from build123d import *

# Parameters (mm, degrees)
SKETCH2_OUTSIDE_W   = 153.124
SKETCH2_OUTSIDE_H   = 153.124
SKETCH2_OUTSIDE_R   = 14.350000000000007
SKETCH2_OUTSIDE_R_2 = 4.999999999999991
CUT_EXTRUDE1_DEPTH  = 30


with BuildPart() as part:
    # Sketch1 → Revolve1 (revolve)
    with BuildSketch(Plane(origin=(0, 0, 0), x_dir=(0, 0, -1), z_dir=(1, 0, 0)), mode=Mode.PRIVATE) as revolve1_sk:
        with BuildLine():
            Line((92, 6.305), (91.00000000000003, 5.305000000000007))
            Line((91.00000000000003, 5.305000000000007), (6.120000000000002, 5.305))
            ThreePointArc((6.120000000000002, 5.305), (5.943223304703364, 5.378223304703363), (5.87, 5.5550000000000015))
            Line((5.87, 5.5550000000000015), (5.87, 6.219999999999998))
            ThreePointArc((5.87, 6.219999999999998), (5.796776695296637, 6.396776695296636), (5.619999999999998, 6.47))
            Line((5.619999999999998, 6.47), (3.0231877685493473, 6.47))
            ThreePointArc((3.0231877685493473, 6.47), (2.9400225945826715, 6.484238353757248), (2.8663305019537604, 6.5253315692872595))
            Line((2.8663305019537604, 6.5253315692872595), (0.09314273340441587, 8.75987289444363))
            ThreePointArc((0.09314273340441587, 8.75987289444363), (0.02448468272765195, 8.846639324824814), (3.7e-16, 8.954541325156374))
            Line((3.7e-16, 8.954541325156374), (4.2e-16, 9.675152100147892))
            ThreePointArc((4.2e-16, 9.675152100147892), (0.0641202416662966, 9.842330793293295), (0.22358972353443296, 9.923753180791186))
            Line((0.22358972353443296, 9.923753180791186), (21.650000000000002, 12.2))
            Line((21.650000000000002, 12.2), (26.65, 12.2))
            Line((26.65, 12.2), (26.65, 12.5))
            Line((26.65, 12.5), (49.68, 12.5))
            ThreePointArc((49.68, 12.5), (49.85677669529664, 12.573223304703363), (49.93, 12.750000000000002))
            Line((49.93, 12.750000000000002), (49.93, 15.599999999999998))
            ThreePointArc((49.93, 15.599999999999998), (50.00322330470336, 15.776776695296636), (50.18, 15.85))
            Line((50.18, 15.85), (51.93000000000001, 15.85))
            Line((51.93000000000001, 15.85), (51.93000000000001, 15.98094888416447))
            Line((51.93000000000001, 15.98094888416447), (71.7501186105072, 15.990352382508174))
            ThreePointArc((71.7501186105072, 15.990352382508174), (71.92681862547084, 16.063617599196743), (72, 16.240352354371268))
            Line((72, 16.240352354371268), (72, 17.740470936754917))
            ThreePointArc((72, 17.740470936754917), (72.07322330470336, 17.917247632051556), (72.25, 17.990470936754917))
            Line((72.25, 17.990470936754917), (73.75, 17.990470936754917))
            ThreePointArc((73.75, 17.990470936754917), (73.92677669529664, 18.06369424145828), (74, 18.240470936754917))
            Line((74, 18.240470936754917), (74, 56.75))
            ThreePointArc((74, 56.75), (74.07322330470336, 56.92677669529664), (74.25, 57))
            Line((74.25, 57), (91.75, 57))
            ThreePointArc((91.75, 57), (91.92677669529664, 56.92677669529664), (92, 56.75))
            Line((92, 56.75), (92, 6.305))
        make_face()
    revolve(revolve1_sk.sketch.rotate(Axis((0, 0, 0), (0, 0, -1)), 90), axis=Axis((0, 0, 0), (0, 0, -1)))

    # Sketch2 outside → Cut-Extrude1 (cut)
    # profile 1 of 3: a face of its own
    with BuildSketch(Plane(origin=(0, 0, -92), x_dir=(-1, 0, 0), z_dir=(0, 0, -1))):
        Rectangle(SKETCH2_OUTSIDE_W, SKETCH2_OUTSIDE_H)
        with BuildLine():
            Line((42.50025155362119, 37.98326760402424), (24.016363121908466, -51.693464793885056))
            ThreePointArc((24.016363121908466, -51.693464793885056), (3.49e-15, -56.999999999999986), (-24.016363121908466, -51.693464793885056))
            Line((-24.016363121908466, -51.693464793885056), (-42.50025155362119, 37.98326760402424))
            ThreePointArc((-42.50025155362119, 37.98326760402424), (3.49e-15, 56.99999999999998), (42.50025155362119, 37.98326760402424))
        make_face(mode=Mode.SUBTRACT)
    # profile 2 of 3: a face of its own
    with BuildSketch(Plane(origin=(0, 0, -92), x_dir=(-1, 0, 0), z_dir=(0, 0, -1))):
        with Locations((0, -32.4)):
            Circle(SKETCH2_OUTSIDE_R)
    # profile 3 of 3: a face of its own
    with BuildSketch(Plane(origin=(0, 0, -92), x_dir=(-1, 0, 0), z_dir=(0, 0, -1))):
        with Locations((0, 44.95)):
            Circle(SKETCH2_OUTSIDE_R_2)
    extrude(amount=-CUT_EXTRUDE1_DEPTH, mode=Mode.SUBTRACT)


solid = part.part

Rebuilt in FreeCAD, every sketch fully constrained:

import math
import FreeCAD as App
import Part
import Sketcher

V = App.Vector
Q = App.Units.Quantity


def add_polygon(sketch, points):
    """Adds a closed chain of lines whose ends are joined by coincident constraints."""
    first, n = sketch.GeometryCount, len(points)
    for a, b in zip(points, points[1:] + points[:1]):
        sketch.addGeometry(Part.LineSegment(App.Vector(*a, 0), App.Vector(*b, 0)), False)
    for i in range(n):
        sketch.addConstraint(Sketcher.Constraint("Coincident", first + i, 2, first + (i + 1) % n, 1))

doc = App.newDocument("Part")
body = doc.addObject("PartDesign::Body", "Body")

# Sketch on YZ plane
sketch1 = doc.addObject("Sketcher::SketchObject", "Sketch")
body.addObject(sketch1)
sketch1.AttachmentSupport = (doc.YZ_Plane, [""])
sketch1.MapMode = "FlatFace"
sketch1.addGeometry(Part.LineSegment(V(5.3, -91, 0), V(6.3, -92, 0)), False)
sketch1.addGeometry(Part.LineSegment(V(6.3, -92, 0), V(56.75, -92, 0)), False)
sketch1.addGeometry(Part.ArcOfCircle(Part.Circle(V(56.75, -91.75, 0), V(0, 0, 1), 0.25), math.radians(-90), math.radians(0)), False)
sketch1.addGeometry(Part.LineSegment(V(57, -91.75, 0), V(57, -74.25, 0)), False)
sketch1.addGeometry(Part.ArcOfCircle(Part.Circle(V(56.75, -74.25, 0), V(0, 0, 1), 0.25), math.radians(0), math.radians(90)), False)
sketch1.addGeometry(Part.LineSegment(V(56.75, -74, 0), V(18.24, -74, 0)), False)
sketch1.addGeometry(Part.ArcOfCircle(Part.Circle(V(18.24, -73.75, 0), V(0, 0, 1), 0.25), math.radians(180), math.radians(270)), False)
sketch1.addGeometry(Part.LineSegment(V(17.99, -73.75, 0), V(17.99, -72.25, 0)), False)
sketch1.addGeometry(Part.ArcOfCircle(Part.Circle(V(17.74, -72.25, 0), V(0, 0, 1), 0.25), math.radians(0), math.radians(90)), False)
sketch1.addGeometry(Part.LineSegment(V(17.74, -72, 0), V(16.24, -72, 0)), False)
sketch1.addGeometry(Part.ArcOfCircle(Part.Circle(V(16.24, -71.75, 0), V(0, 0, 1), 0.25), math.radians(-180), math.radians(-90)), False)
sketch1.addGeometry(Part.LineSegment(V(15.99, -71.75, 0), V(15.98, -51.93, 0)), False)
sketch1.addGeometry(Part.LineSegment(V(15.98, -51.93, 0), V(15.85, -51.93, 0)), False)
sketch1.addGeometry(Part.LineSegment(V(15.85, -51.93, 0), V(15.85, -50.18, 0)), False)
sketch1.addGeometry(Part.ArcOfCircle(Part.Circle(V(15.6, -50.18, 0), V(0, 0, 1), 0.25), math.radians(0), math.radians(90)), False)
sketch1.addGeometry(Part.LineSegment(V(15.6, -49.93, 0), V(12.75, -49.93, 0)), False)
sketch1.addGeometry(Part.ArcOfCircle(Part.Circle(V(12.75, -49.68, 0), V(0, 0, 1), 0.25), math.radians(180), math.radians(270)), False)
sketch1.addGeometry(Part.LineSegment(V(12.5, -49.68, 0), V(12.5, -26.65, 0)), False)
sketch1.addGeometry(Part.LineSegment(V(12.5, -26.65, 0), V(12.2, -26.65, 0)), False)
sketch1.addGeometry(Part.LineSegment(V(12.2, -26.65, 0), V(12.2, -21.65, 0)), False)
sketch1.addGeometry(Part.LineSegment(V(12.2, -21.65, 0), V(9.92, -0.22, 0)), False)
sketch1.addGeometry(Part.ArcOfCircle(Part.Circle(V(9.68, -0.25, 0), V(0, 0, 1), 0.25), math.radians(6), math.radians(90)), False)
sketch1.addGeometry(Part.LineSegment(V(9.68, 0, 0), V(8.95, 0, 0)), False)
sketch1.addGeometry(Part.ArcOfCircle(Part.Circle(V(8.95, -0.25, 0), V(0, 0, 1), 0.25), math.radians(90), math.radians(141)), False)
sketch1.addGeometry(Part.LineSegment(V(8.76, -0.09, 0), V(6.53, -2.87, 0)), False)
sketch1.addGeometry(Part.ArcOfCircle(Part.Circle(V(6.72, -3.02, 0), V(0, 0, 1), 0.25), math.radians(141), math.radians(180)), False)
sketch1.addGeometry(Part.LineSegment(V(6.47, -3.02, 0), V(6.47, -5.62, 0)), False)
sketch1.addGeometry(Part.ArcOfCircle(Part.Circle(V(6.22, -5.62, 0), V(0, 0, 1), 0.25), math.radians(-90), math.radians(0)), False)
sketch1.addGeometry(Part.LineSegment(V(6.22, -5.87, 0), V(5.55, -5.87, 0)), False)
sketch1.addGeometry(Part.ArcOfCircle(Part.Circle(V(5.55, -6.12, 0), V(0, 0, 1), 0.25), math.radians(90), math.radians(180)), False)
sketch1.addGeometry(Part.LineSegment(V(5.3, -6.12, 0), V(5.3, -91, 0)), False)
sketch1.addConstraint(Sketcher.Constraint("Coincident", 0, 2, 1, 1))
sketch1.addConstraint(Sketcher.Constraint("Tangent", 1, 2, 2, 1))
sketch1.addConstraint(Sketcher.Constraint("Tangent", 2, 2, 3, 1))
sketch1.addConstraint(Sketcher.Constraint("Tangent", 3, 2, 4, 1))
sketch1.addConstraint(Sketcher.Constraint("Tangent", 4, 2, 5, 1))
sketch1.addConstraint(Sketcher.Constraint("Tangent", 5, 2, 6, 2))
sketch1.addConstraint(Sketcher.Constraint("Tangent", 6, 1, 7, 1))
sketch1.addConstraint(Sketcher.Constraint("Tangent", 7, 2, 8, 1))
sketch1.addConstraint(Sketcher.Constraint("Tangent", 8, 2, 9, 1))
sketch1.addConstraint(Sketcher.Constraint("Tangent", 9, 2, 10, 2))
sketch1.addConstraint(Sketcher.Constraint("Tangent", 10, 1, 11, 1))
sketch1.addConstraint(Sketcher.Constraint("Coincident", 11, 2, 12, 1))
sketch1.addConstraint(Sketcher.Constraint("Coincident", 12, 2, 13, 1))
sketch1.addConstraint(Sketcher.Constraint("Tangent", 13, 2, 14, 1))
sketch1.addConstraint(Sketcher.Constraint("Tangent", 14, 2, 15, 1))
sketch1.addConstraint(Sketcher.Constraint("Tangent", 15, 2, 16, 2))
sketch1.addConstraint(Sketcher.Constraint("Tangent", 16, 1, 17, 1))
sketch1.addConstraint(Sketcher.Constraint("Coincident", 17, 2, 18, 1))
sketch1.addConstraint(Sketcher.Constraint("Coincident", 18, 2, 19, 1))
sketch1.addConstraint(Sketcher.Constraint("Coincident", 19, 2, 20, 1))
sketch1.addConstraint(Sketcher.Constraint("Tangent", 20, 2, 21, 1))
sketch1.addConstraint(Sketcher.Constraint("Tangent", 21, 2, 22, 1))
sketch1.addConstraint(Sketcher.Constraint("Tangent", 22, 2, 23, 1))
sketch1.addConstraint(Sketcher.Constraint("Tangent", 23, 2, 24, 1))
sketch1.addConstraint(Sketcher.Constraint("Tangent", 24, 2, 25, 1))
sketch1.addConstraint(Sketcher.Constraint("Tangent", 25, 2, 26, 1))
sketch1.addConstraint(Sketcher.Constraint("Tangent", 26, 2, 27, 2))
sketch1.addConstraint(Sketcher.Constraint("Tangent", 27, 1, 28, 1))
sketch1.addConstraint(Sketcher.Constraint("Tangent", 28, 2, 29, 1))
sketch1.addConstraint(Sketcher.Constraint("Tangent", 29, 2, 30, 1))
sketch1.addConstraint(Sketcher.Constraint("Coincident", 30, 2, 0, 1))
sketch1.addConstraint(Sketcher.Constraint("Horizontal", 1))
sketch1.addConstraint(Sketcher.Constraint("Vertical", 3))
sketch1.addConstraint(Sketcher.Constraint("Horizontal", 5))
sketch1.addConstraint(Sketcher.Constraint("Vertical", 7))
sketch1.addConstraint(Sketcher.Constraint("Horizontal", 9))
sketch1.addConstraint(Sketcher.Constraint("Horizontal", 12))
sketch1.addConstraint(Sketcher.Constraint("Vertical", 13))
sketch1.addConstraint(Sketcher.Constraint("Horizontal", 15))
sketch1.addConstraint(Sketcher.Constraint("Vertical", 17))
sketch1.addConstraint(Sketcher.Constraint("Horizontal", 18))
sketch1.addConstraint(Sketcher.Constraint("Vertical", 19))
sketch1.addConstraint(Sketcher.Constraint("Horizontal", 22))
sketch1.addConstraint(Sketcher.Constraint("Vertical", 26))
sketch1.addConstraint(Sketcher.Constraint("Horizontal", 28))
sketch1.addConstraint(Sketcher.Constraint("Vertical", 30))
sketch1.addConstraint(Sketcher.Constraint("Equal", 2, 4))
sketch1.addConstraint(Sketcher.Constraint("Equal", 4, 6))
sketch1.addConstraint(Sketcher.Constraint("Equal", 6, 8))
sketch1.addConstraint(Sketcher.Constraint("Equal", 8, 10))
sketch1.addConstraint(Sketcher.Constraint("Equal", 10, 14))
sketch1.addConstraint(Sketcher.Constraint("Equal", 14, 16))
sketch1.addConstraint(Sketcher.Constraint("Equal", 16, 21))
sketch1.addConstraint(Sketcher.Constraint("Equal", 21, 23))
sketch1.addConstraint(Sketcher.Constraint("Equal", 23, 25))
sketch1.addConstraint(Sketcher.Constraint("Equal", 25, 27))
sketch1.addConstraint(Sketcher.Constraint("Equal", 27, 29))
sketch1.addConstraint(Sketcher.Constraint("PointOnObject", 21, 2, -1))
sketch1.addConstraint(Sketcher.Constraint("DistanceY", 19, 1, 19, 2, 5.0))
sketch1.addConstraint(Sketcher.Constraint("Angle", 0, Q("-45 deg")))
sketch1.addConstraint(Sketcher.Constraint("Radius", 2, 0.25))
sketch1.addConstraint(Sketcher.Constraint("DistanceX", 18, 2, 18, 1, 0.3))
sketch1.addConstraint(Sketcher.Constraint("DistanceY", 3, 1, 3, 2, 17.5))
sketch1.addConstraint(Sketcher.Constraint("DistanceY", 7, 1, 7, 2, 1.5))
sketch1.addConstraint(Sketcher.Constraint("DistanceY", 0, 2, -1, 1, 92.0))
sketch1.addConstraint(Sketcher.Constraint("DistanceX", -1, 1, 2, 2, 57.0))
sketch1.addConstraint(Sketcher.Constraint("DistanceY", 30, 2, -1, 1, 91.0))
sketch1.addConstraint(Sketcher.Constraint("DistanceX", 16, 3, 4, 3, 44.0))
sketch1.addConstraint(Sketcher.Constraint("DistanceY", 12, 2, 14, 2, 2.0))
sketch1.addConstraint(Sketcher.Constraint("DistanceX", 15, 2, 15, 1, 2.85))
sketch1.addConstraint(Sketcher.Constraint("DistanceY", 17, 1, 17, 2, 23.03))
sketch1.addConstraint(Sketcher.Constraint("DistanceY", 30, 2, 30, 1, 84.88))
sketch1.addConstraint(Sketcher.Constraint("DistanceX", 1, 1, 1, 2, 50.445))
sketch1.addConstraint(Sketcher.Constraint("DistanceX", 28, 2, 28, 1, 0.665))
sketch1.addConstraint(Sketcher.Constraint("DistanceY", 14, 3, -1, 1, 50.18))
sketch1.addConstraint(Sketcher.Constraint("DistanceX", 5, 2, 5, 1, 38.509529))
sketch1.addConstraint(Sketcher.Constraint("DistanceX", 9, 2, 9, 1, 1.500119))
sketch1.addConstraint(Sketcher.Constraint("DistanceX", 12, 2, 12, 1, 0.130949))
sketch1.addConstraint(Sketcher.Constraint("DistanceX", 22, 2, 22, 1, 0.720611))
sketch1.addConstraint(Sketcher.Constraint("DistanceX", 21, 3, 10, 3, 6.5652))
sketch1.addConstraint(Sketcher.Constraint("DistanceY", 25, 3, 20, 2, 2.799598))
revolution = doc.addObject("PartDesign::Revolution", "Revolution")
body.addObject(revolution)
revolution.Profile = sketch1
revolution.ReferenceAxis = (sketch1, ["V_Axis"])
revolution.Angle = 360

# Sketch on XY plane
sketch2 = doc.addObject("Sketcher::SketchObject", "Sketch001")
body.addObject(sketch2)
sketch2.AttachmentSupport = (doc.XY_Plane, [""])
sketch2.MapMode = "FlatFace"
sketch2.AttachmentOffset = App.Placement(V(0, 0, -92), App.Rotation())
add_polygon(sketch2, [(77, 77), (77, -77), (-77, -77), (-77, 77)])  # lines 0-3
sketch2.addGeometry(Part.ArcOfCircle(Part.Circle(V(0, 0, 0), V(0, 0, 1), 57), math.radians(42), math.radians(138)), False)  # 4
sketch2.addGeometry(Part.LineSegment(V(-43, 38, 0), V(-24, -52, 0)), False)  # 5
sketch2.addGeometry(Part.ArcOfCircle(Part.Circle(V(0, 0, 0), V(0, 0, 1), 57), math.radians(-115), math.radians(-65)), False)  # 6
sketch2.addGeometry(Part.LineSegment(V(24, -52, 0), V(43, 38, 0)), False)  # 7
sketch2.addGeometry(Part.Circle(V(0, -32, 0), V(0, 0, 1), 14), False)  # 8
sketch2.addGeometry(Part.Circle(V(0, 45, 0), V(0, 0, 1), 5), False)  # 9
sketch2.addConstraint(Sketcher.Constraint("Coincident", 4, 2, 5, 1))
sketch2.addConstraint(Sketcher.Constraint("Coincident", 5, 2, 6, 1))
sketch2.addConstraint(Sketcher.Constraint("Coincident", 6, 2, 7, 1))
sketch2.addConstraint(Sketcher.Constraint("Coincident", 7, 2, 4, 1))
sketch2.addConstraint(Sketcher.Constraint("Vertical", 0))
sketch2.addConstraint(Sketcher.Constraint("Horizontal", 1))
sketch2.addConstraint(Sketcher.Constraint("Vertical", 2))
sketch2.addConstraint(Sketcher.Constraint("Horizontal", 3))
sketch2.addConstraint(Sketcher.Constraint("Coincident", 4, 3, -1, 1))
sketch2.addConstraint(Sketcher.Constraint("Coincident", 6, 3, -1, 1))
sketch2.addConstraint(Sketcher.Constraint("Equal", 4, 6))
sketch2.addConstraint(Sketcher.Constraint("Symmetric", 0, 2, 2, 2, -1, 1))
sketch2.addConstraint(Sketcher.Constraint("PointOnObject", 8, 3, -2))
sketch2.addConstraint(Sketcher.Constraint("PointOnObject", 9, 3, -2))
sketch2.addConstraint(Sketcher.Constraint("Horizontal", 5, 2, 6, 2))
sketch2.addConstraint(Sketcher.Constraint("Horizontal", 4, 2, 7, 2))
sketch2.addConstraint(Sketcher.Constraint("Equal", 3, 0))
sketch2.addConstraint(Sketcher.Constraint("Diameter", 9, 10.0))
sketch2.addConstraint(Sketcher.Constraint("Radius", 4, 57.0))
sketch2.addConstraint(Sketcher.Constraint("Diameter", 8, 28.7))
sketch2.addConstraint(Sketcher.Constraint("DistanceY", 8, 3, -1, 1, 32.4))
sketch2.addConstraint(Sketcher.Constraint("DistanceX", 1, 2, 1, 1, 153.124))
sketch2.addConstraint(Sketcher.Constraint("DistanceY", -1, 1, 9, 3, 44.95))
sketch2.addConstraint(Sketcher.Constraint("Distance", 5, 91.56184))
sketch2.addConstraint(Sketcher.Constraint("DistanceX", 4, 2, -1, 1, 42.500252))
pocket1 = doc.addObject("PartDesign::Pocket", "Pocket")
body.addObject(pocket1)
pocket1.Profile = sketch2
pocket1.Length = 30
pocket1.Reversed = True

doc.recompute()
